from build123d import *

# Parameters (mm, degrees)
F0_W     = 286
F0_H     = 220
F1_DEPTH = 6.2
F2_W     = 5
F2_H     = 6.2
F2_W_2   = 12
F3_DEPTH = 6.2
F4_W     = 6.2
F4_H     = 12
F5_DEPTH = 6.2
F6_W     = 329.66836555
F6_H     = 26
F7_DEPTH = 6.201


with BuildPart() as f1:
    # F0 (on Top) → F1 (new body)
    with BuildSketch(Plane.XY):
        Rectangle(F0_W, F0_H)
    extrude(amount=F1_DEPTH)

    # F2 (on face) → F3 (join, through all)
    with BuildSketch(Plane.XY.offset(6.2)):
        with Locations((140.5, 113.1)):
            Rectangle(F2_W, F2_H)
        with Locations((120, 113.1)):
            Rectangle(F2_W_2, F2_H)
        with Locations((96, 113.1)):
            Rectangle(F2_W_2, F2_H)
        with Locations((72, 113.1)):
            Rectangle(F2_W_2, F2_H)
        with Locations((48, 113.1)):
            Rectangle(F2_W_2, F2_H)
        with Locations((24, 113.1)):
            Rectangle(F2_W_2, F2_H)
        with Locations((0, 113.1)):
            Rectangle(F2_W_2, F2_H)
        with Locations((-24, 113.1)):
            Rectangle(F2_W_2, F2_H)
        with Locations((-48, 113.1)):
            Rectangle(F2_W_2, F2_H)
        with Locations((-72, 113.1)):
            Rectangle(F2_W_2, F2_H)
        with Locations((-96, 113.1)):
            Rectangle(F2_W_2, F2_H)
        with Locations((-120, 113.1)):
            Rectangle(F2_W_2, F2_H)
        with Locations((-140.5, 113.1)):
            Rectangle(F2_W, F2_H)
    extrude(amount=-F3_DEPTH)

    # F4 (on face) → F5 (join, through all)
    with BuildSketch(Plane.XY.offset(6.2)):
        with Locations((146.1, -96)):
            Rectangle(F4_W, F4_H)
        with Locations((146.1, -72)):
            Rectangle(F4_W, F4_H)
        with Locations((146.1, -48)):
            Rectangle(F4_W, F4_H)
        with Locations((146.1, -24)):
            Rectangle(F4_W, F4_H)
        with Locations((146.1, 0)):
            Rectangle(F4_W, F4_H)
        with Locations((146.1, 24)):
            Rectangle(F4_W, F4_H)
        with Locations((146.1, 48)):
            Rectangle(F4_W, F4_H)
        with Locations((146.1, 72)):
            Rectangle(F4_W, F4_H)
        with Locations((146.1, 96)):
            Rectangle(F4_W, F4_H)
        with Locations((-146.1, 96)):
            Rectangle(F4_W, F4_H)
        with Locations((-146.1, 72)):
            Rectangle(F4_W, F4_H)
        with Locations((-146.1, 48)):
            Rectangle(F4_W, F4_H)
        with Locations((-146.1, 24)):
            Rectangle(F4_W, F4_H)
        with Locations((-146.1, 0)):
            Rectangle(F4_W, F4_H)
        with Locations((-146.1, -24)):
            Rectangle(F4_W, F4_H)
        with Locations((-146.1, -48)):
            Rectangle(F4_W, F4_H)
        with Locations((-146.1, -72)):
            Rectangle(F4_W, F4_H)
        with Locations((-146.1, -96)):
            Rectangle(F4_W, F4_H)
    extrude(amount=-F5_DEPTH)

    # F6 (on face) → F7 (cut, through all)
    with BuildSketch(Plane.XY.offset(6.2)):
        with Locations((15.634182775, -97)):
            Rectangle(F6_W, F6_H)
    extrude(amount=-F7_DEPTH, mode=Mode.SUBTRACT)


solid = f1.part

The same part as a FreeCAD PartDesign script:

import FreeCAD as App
import Part
import Sketcher

V = App.Vector
Q = App.Units.Quantity

doc = App.newDocument("Part")
params = doc.addObject("Spreadsheet::Sheet", "Params")
for row, (alias, value) in enumerate([
    ("sketch1_width", "286 mm"),
    ("sketch1_height", "220 mm"),
    ("pad1_length", "6.2 mm"),
    ("sketch2_width", "5 mm"),
    ("sketch2_width2", "12 mm"),
    ("sketch2_height", "6.2 mm"),
    ("pad2_length", "6.2 mm"),
    ("sketch3_height", "12 mm"),
    ("sketch3_width", "6.2 mm"),
    ("pad3_length", "6.2 mm"),
    ("sketch4_height", "26 mm"),
], start=1):
    params.set(f"A{row}", alias)
    params.set(f"B{row}", "=" + value)
    params.setAlias(f"B{row}", alias)

body = doc.addObject("PartDesign::Body", "Body")

# Sketch on XY plane
sketch1 = body.newObject("Sketcher::SketchObject", "Sketch")
sketch1.AttachmentSupport = (doc.getObject("XY_Plane"), [""])
sketch1.MapMode = "FlatFace"
sketch1.addGeometry(Part.LineSegment(V(-143, 110, 0), V(-143, -110, 0)), False)
sketch1.addGeometry(Part.LineSegment(V(-143, -110, 0), V(143, -110, 0)), False)
sketch1.addGeometry(Part.LineSegment(V(143, -110, 0), V(143, 110, 0)), False)
sketch1.addGeometry(Part.LineSegment(V(143, 110, 0), V(-143, 110, 0)), False)
sketch1.addConstraint(Sketcher.Constraint("Coincident", 0, 2, 1, 1))
sketch1.addConstraint(Sketcher.Constraint("Coincident", 1, 2, 2, 1))
sketch1.addConstraint(Sketcher.Constraint("Coincident", 2, 2, 3, 1))
sketch1.addConstraint(Sketcher.Constraint("Coincident", 3, 2, 0, 1))
sketch1.addConstraint(Sketcher.Constraint("Vertical", 0))
sketch1.addConstraint(Sketcher.Constraint("Horizontal", 1))
sketch1.addConstraint(Sketcher.Constraint("Vertical", 2))
sketch1.addConstraint(Sketcher.Constraint("Horizontal", 3))
sketch1.addConstraint(Sketcher.Constraint("Symmetric", 0, 2, 2, 2, -1, 1))
sketch1.addConstraint(Sketcher.Constraint("DistanceX", 1, 1, 1, 2, Q("286 mm")))
sketch1.addConstraint(Sketcher.Constraint("DistanceY", 0, 2, 0, 1, Q("220 mm")))
sketch1.setExpression("Constraints[9]", "Params.sketch1_width")
sketch1.setExpression("Constraints[10]", "Params.sketch1_height")
pad1 = body.newObject("PartDesign::Pad", "Pad")
pad1.Profile = sketch1
pad1.setExpression("Length", "Params.pad1_length")

# Sketch on XY plane
sketch2 = body.newObject("Sketcher::SketchObject", "Sketch001")
sketch2.AttachmentSupport = (doc.getObject("XY_Plane"), [""])
sketch2.MapMode = "FlatFace"
sketch2.AttachmentOffset = App.Placement(V(0, 0, 6.2), App.Rotation())
sketch2.addGeometry(Part.LineSegment(V(138, 116, 0), V(138, 110, 0)), False)
sketch2.addGeometry(Part.LineSegment(V(138, 110, 0), V(143, 110, 0)), False)
sketch2.addGeometry(Part.LineSegment(V(143, 110, 0), V(143, 116, 0)), False)
sketch2.addGeometry(Part.LineSegment(V(143, 116, 0), V(138, 116, 0)), False)
sketch2.addGeometry(Part.LineSegment(V(114, 116, 0), V(114, 110, 0)), False)
sketch2.addGeometry(Part.LineSegment(V(114, 110, 0), V(126, 110, 0)), False)
sketch2.addGeometry(Part.LineSegment(V(126, 110, 0), V(126, 116, 0)), False)
sketch2.addGeometry(Part.LineSegment(V(126, 116, 0), V(114, 116, 0)), False)
sketch2.addGeometry(Part.LineSegment(V(90, 116, 0), V(90, 110, 0)), False)
sketch2.addGeometry(Part.LineSegment(V(90, 110, 0), V(102, 110, 0)), False)
sketch2.addGeometry(Part.LineSegment(V(102, 110, 0), V(102, 116, 0)), False)
sketch2.addGeometry(Part.LineSegment(V(102, 116, 0), V(90, 116, 0)), False)
sketch2.addGeometry(Part.LineSegment(V(66, 116, 0), V(66, 110, 0)), False)
sketch2.addGeometry(Part.LineSegment(V(66, 110, 0), V(78, 110, 0)), False)
sketch2.addGeometry(Part.LineSegment(V(78, 110, 0), V(78, 116, 0)), False)
sketch2.addGeometry(Part.LineSegment(V(78, 116, 0), V(66, 116, 0)), False)
sketch2.addGeometry(Part.LineSegment(V(42, 116, 0), V(42, 110, 0)), False)
sketch2.addGeometry(Part.LineSegment(V(42, 110, 0), V(54, 110, 0)), False)
sketch2.addGeometry(Part.LineSegment(V(54, 110, 0), V(54, 116, 0)), False)
sketch2.addGeometry(Part.LineSegment(V(54, 116, 0), V(42, 116, 0)), False)
sketch2.addGeometry(Part.LineSegment(V(18, 116, 0), V(18, 110, 0)), False)
sketch2.addGeometry(Part.LineSegment(V(18, 110, 0), V(30, 110, 0)), False)
sketch2.addGeometry(Part.LineSegment(V(30, 110, 0), V(30, 116, 0)), False)
sketch2.addGeometry(Part.LineSegment(V(30, 116, 0), V(18, 116, 0)), False)
sketch2.addGeometry(Part.LineSegment(V(-6, 116, 0), V(-6, 110, 0)), False)
sketch2.addGeometry(Part.LineSegment(V(-6, 110, 0), V(6, 110, 0)), False)
sketch2.addGeometry(Part.LineSegment(V(6, 110, 0), V(6, 116, 0)), False)
sketch2.addGeometry(Part.LineSegment(V(6, 116, 0), V(-6, 116, 0)), False)
sketch2.addGeometry(Part.LineSegment(V(-30, 116, 0), V(-30, 110, 0)), False)
sketch2.addGeometry(Part.LineSegment(V(-30, 110, 0), V(-18, 110, 0)), False)
sketch2.addGeometry(Part.LineSegment(V(-18, 110, 0), V(-18, 116, 0)), False)
sketch2.addGeometry(Part.LineSegment(V(-18, 116, 0), V(-30, 116, 0)), False)
sketch2.addGeometry(Part.LineSegment(V(-54, 116, 0), V(-54, 110, 0)), False)
sketch2.addGeometry(Part.LineSegment(V(-54, 110, 0), V(-42, 110, 0)), False)
sketch2.addGeometry(Part.LineSegment(V(-42, 110, 0), V(-42, 116, 0)), False)
sketch2.addGeometry(Part.LineSegment(V(-42, 116, 0), V(-54, 116, 0)), False)
sketch2.addGeometry(Part.LineSegment(V(-78, 116, 0), V(-78, 110, 0)), False)
sketch2.addGeometry(Part.LineSegment(V(-78, 110, 0), V(-66, 110, 0)), False)
sketch2.addGeometry(Part.LineSegment(V(-66, 110, 0), V(-66, 116, 0)), False)
sketch2.addGeometry(Part.LineSegment(V(-66, 116, 0), V(-78, 116, 0)), False)
sketch2.addGeometry(Part.LineSegment(V(-102, 116, 0), V(-102, 110, 0)), False)
sketch2.addGeometry(Part.LineSegment(V(-102, 110, 0), V(-90, 110, 0)), False)
sketch2.addGeometry(Part.LineSegment(V(-90, 110, 0), V(-90, 116, 0)), False)
sketch2.addGeometry(Part.LineSegment(V(-90, 116, 0), V(-102, 116, 0)), False)
sketch2.addGeometry(Part.LineSegment(V(-126, 116, 0), V(-126, 110, 0)), False)
sketch2.addGeometry(Part.LineSegment(V(-126, 110, 0), V(-114, 110, 0)), False)
sketch2.addGeometry(Part.LineSegment(V(-114, 110, 0), V(-114, 116, 0)), False)
sketch2.addGeometry(Part.LineSegment(V(-114, 116, 0), V(-126, 116, 0)), False)
sketch2.addGeometry(Part.LineSegment(V(-143, 116, 0), V(-143, 110, 0)), False)
sketch2.addGeometry(Part.LineSegment(V(-143, 110, 0), V(-138, 110, 0)), False)
sketch2.addGeometry(Part.LineSegment(V(-138, 110, 0), V(-138, 116, 0)), False)
sketch2.addGeometry(Part.LineSegment(V(-138, 116, 0), V(-143, 116, 0)), False)
sketch2.addConstraint(Sketcher.Constraint("Coincident", 0, 2, 1, 1))
sketch2.addConstraint(Sketcher.Constraint("Coincident", 1, 2, 2, 1))
sketch2.addConstraint(Sketcher.Constraint("Coincident", 2, 2, 3, 1))
sketch2.addConstraint(Sketcher.Constraint("Coincident", 3, 2, 0, 1))
sketch2.addConstraint(Sketcher.Constraint("Coincident", 4, 2, 5, 1))
sketch2.addConstraint(Sketcher.Constraint("Coincident", 5, 2, 6, 1))
sketch2.addConstraint(Sketcher.Constraint("Coincident", 6, 2, 7, 1))
sketch2.addConstraint(Sketcher.Constraint("Coincident", 7, 2, 4, 1))
sketch2.addConstraint(Sketcher.Constraint("Coincident", 8, 2, 9, 1))
sketch2.addConstraint(Sketcher.Constraint("Coincident", 9, 2, 10, 1))
sketch2.addConstraint(Sketcher.Constraint("Coincident", 10, 2, 11, 1))
sketch2.addConstraint(Sketcher.Constraint("Coincident", 11, 2, 8, 1))
sketch2.addConstraint(Sketcher.Constraint("Coincident", 12, 2, 13, 1))
sketch2.addConstraint(Sketcher.Constraint("Coincident", 13, 2, 14, 1))
sketch2.addConstraint(Sketcher.Constraint("Coincident", 14, 2, 15, 1))
sketch2.addConstraint(Sketcher.Constraint("Coincident", 15, 2, 12, 1))
sketch2.addConstraint(Sketcher.Constraint("Coincident", 16, 2, 17, 1))
sketch2.addConstraint(Sketcher.Constraint("Coincident", 17, 2, 18, 1))
sketch2.addConstraint(Sketcher.Constraint("Coincident", 18, 2, 19, 1))
sketch2.addConstraint(Sketcher.Constraint("Coincident", 19, 2, 16, 1))
sketch2.addConstraint(Sketcher.Constraint("Coincident", 20, 2, 21, 1))
sketch2.addConstraint(Sketcher.Constraint("Coincident", 21, 2, 22, 1))
sketch2.addConstraint(Sketcher.Constraint("Coincident", 22, 2, 23, 1))
sketch2.addConstraint(Sketcher.Constraint("Coincident", 23, 2, 20, 1))
sketch2.addConstraint(Sketcher.Constraint("Coincident", 24, 2, 25, 1))
sketch2.addConstraint(Sketcher.Constraint("Coincident", 25, 2, 26, 1))
sketch2.addConstraint(Sketcher.Constraint("Coincident", 26, 2, 27, 1))
sketch2.addConstraint(Sketcher.Constraint("Coincident", 27, 2, 24, 1))
sketch2.addConstraint(Sketcher.Constraint("Coincident", 28, 2, 29, 1))
sketch2.addConstraint(Sketcher.Constraint("Coincident", 29, 2, 30, 1))
sketch2.addConstraint(Sketcher.Constraint("Coincident", 30, 2, 31, 1))
sketch2.addConstraint(Sketcher.Constraint("Coincident", 31, 2, 28, 1))
sketch2.addConstraint(Sketcher.Constraint("Coincident", 32, 2, 33, 1))
sketch2.addConstraint(Sketcher.Constraint("Coincident", 33, 2, 34, 1))
sketch2.addConstraint(Sketcher.Constraint("Coincident", 34, 2, 35, 1))
sketch2.addConstraint(Sketcher.Constraint("Coincident", 35, 2, 32, 1))
sketch2.addConstraint(Sketcher.Constraint("Coincident", 36, 2, 37, 1))
sketch2.addConstraint(Sketcher.Constraint("Coincident", 37, 2, 38, 1))
sketch2.addConstraint(Sketcher.Constraint("Coincident", 38, 2, 39, 1))
sketch2.addConstraint(Sketcher.Constraint("Coincident", 39, 2, 36, 1))
sketch2.addConstraint(Sketcher.Constraint("Coincident", 40, 2, 41, 1))
sketch2.addConstraint(Sketcher.Constraint("Coincident", 41, 2, 42, 1))
sketch2.addConstraint(Sketcher.Constraint("Coincident", 42, 2, 43, 1))
sketch2.addConstraint(Sketcher.Constraint("Coincident", 43, 2, 40, 1))
sketch2.addConstraint(Sketcher.Constraint("Coincident", 44, 2, 45, 1))
sketch2.addConstraint(Sketcher.Constraint("Coincident", 45, 2, 46, 1))
sketch2.addConstraint(Sketcher.Constraint("Coincident", 46, 2, 47, 1))
sketch2.addConstraint(Sketcher.Constraint("Coincident", 47, 2, 44, 1))
sketch2.addConstraint(Sketcher.Constraint("Coincident", 48, 2, 49, 1))
sketch2.addConstraint(Sketcher.Constraint("Coincident", 49, 2, 50, 1))
sketch2.addConstraint(Sketcher.Constraint("Coincident", 50, 2, 51, 1))
sketch2.addConstraint(Sketcher.Constraint("Coincident", 51, 2, 48, 1))
sketch2.addConstraint(Sketcher.Constraint("Vertical", 0))
sketch2.addConstraint(Sketcher.Constraint("Horizontal", 1))
sketch2.addConstraint(Sketcher.Constraint("Vertical", 2))
sketch2.addConstraint(Sketcher.Constraint("Horizontal", 3))
sketch2.addConstraint(Sketcher.Constraint("Vertical", 4))
sketch2.addConstraint(Sketcher.Constraint("Horizontal", 5))
sketch2.addConstraint(Sketcher.Constraint("Vertical", 6))
sketch2.addConstraint(Sketcher.Constraint("Horizontal", 7))
sketch2.addConstraint(Sketcher.Constraint("Vertical", 8))
sketch2.addConstraint(Sketcher.Constraint("Horizontal", 9))
sketch2.addConstraint(Sketcher.Constraint("Vertical", 10))
sketch2.addConstraint(Sketcher.Constraint("Horizontal", 11))
sketch2.addConstraint(Sketcher.Constraint("Vertical", 12))
sketch2.addConstraint(Sketcher.Constraint("Horizontal", 13))
sketch2.addConstraint(Sketcher.Constraint("Vertical", 14))
sketch2.addConstraint(Sketcher.Constraint("Horizontal", 15))
sketch2.addConstraint(Sketcher.Constraint("Vertical", 16))
sketch2.addConstraint(Sketcher.Constraint("Horizontal", 17))
sketch2.addConstraint(Sketcher.Constraint("Vertical", 18))
sketch2.addConstraint(Sketcher.Constraint("Horizontal", 19))
sketch2.addConstraint(Sketcher.Constraint("Vertical", 20))
sketch2.addConstraint(Sketcher.Constraint("Horizontal", 21))
sketch2.addConstraint(Sketcher.Constraint("Vertical", 22))
sketch2.addConstraint(Sketcher.Constraint("Horizontal", 23))
sketch2.addConstraint(Sketcher.Constraint("Vertical", 24))
sketch2.addConstraint(Sketcher.Constraint("Horizontal", 25))
sketch2.addConstraint(Sketcher.Constraint("Vertical", 26))
sketch2.addConstraint(Sketcher.Constraint("Horizontal", 27))
sketch2.addConstraint(Sketcher.Constraint("Vertical", 28))
sketch2.addConstraint(Sketcher.Constraint("Horizontal", 29))
sketch2.addConstraint(Sketcher.Constraint("Vertical", 30))
sketch2.addConstraint(Sketcher.Constraint("Horizontal", 31))
sketch2.addConstraint(Sketcher.Constraint("Vertical", 32))
sketch2.addConstraint(Sketcher.Constraint("Horizontal", 33))
sketch2.addConstraint(Sketcher.Constraint("Vertical", 34))
sketch2.addConstraint(Sketcher.Constraint("Horizontal", 35))
sketch2.addConstraint(Sketcher.Constraint("Vertical", 36))
sketch2.addConstraint(Sketcher.Constraint("Horizontal", 37))
sketch2.addConstraint(Sketcher.Constraint("Vertical", 38))
sketch2.addConstraint(Sketcher.Constraint("Horizontal", 39))
sketch2.addConstraint(Sketcher.Constraint("Vertical", 40))
sketch2.addConstraint(Sketcher.Constraint("Horizontal", 41))
sketch2.addConstraint(Sketcher.Constraint("Vertical", 42))
sketch2.addConstraint(Sketcher.Constraint("Horizontal", 43))
sketch2.addConstraint(Sketcher.Constraint("Vertical", 44))
sketch2.addConstraint(Sketcher.Constraint("Horizontal", 45))
sketch2.addConstraint(Sketcher.Constraint("Vertical", 46))
sketch2.addConstraint(Sketcher.Constraint("Horizontal", 47))
sketch2.addConstraint(Sketcher.Constraint("Vertical", 48))
sketch2.addConstraint(Sketcher.Constraint("Horizontal", 49))
sketch2.addConstraint(Sketcher.Constraint("Vertical", 50))
sketch2.addConstraint(Sketcher.Constraint("Horizontal", 51))
sketch2.addConstraint(Sketcher.Constraint("Symmetric", 21, 2, 28, 2, -2))
sketch2.addConstraint(Sketcher.Constraint("Symmetric", 23, 2, 30, 2, -2))
sketch2.addConstraint(Sketcher.Constraint("Symmetric", 17, 2, 32, 2, -2))
sketch2.addConstraint(Sketcher.Constraint("Symmetric", 19, 2, 34, 2, -2))
sketch2.addConstraint(Sketcher.Constraint("Symmetric", 13, 2, 36, 2, -2))
sketch2.addConstraint(Sketcher.Constraint("Symmetric", 15, 2, 38, 2, -2))
sketch2.addConstraint(Sketcher.Constraint("Symmetric", 9, 2, 40, 2, -2))
sketch2.addConstraint(Sketcher.Constraint("Symmetric", 11, 2, 42, 2, -2))
sketch2.addConstraint(Sketcher.Constraint("Symmetric", 5, 2, 44, 2, -2))
sketch2.addConstraint(Sketcher.Constraint("Symmetric", 7, 2, 46, 2, -2))
sketch2.addConstraint(Sketcher.Constraint("Symmetric", 1, 2, 48, 2, -2))
sketch2.addConstraint(Sketcher.Constraint("Symmetric", 3, 2, 50, 2, -2))
sketch2.addConstraint(Sketcher.Constraint("Horizontal", 1, 2, 4, 2))
sketch2.addConstraint(Sketcher.Constraint("Horizontal", 3, 2, 6, 2))
sketch2.addConstraint(Sketcher.Constraint("Horizontal", 5, 2, 8, 2))
sketch2.addConstraint(Sketcher.Constraint("Horizontal", 7, 2, 10, 2))
sketch2.addConstraint(Sketcher.Constraint("Horizontal", 9, 2, 12, 2))
sketch2.addConstraint(Sketcher.Constraint("Horizontal", 11, 2, 14, 2))
sketch2.addConstraint(Sketcher.Constraint("Horizontal", 13, 2, 16, 2))
sketch2.addConstraint(Sketcher.Constraint("Horizontal", 15, 2, 18, 2))
sketch2.addConstraint(Sketcher.Constraint("Horizontal", 17, 2, 20, 2))
sketch2.addConstraint(Sketcher.Constraint("Horizontal", 19, 2, 22, 2))
sketch2.addConstraint(Sketcher.Constraint("Horizontal", 21, 2, 24, 2))
sketch2.addConstraint(Sketcher.Constraint("Horizontal", 23, 2, 26, 2))
sketch2.addConstraint(Sketcher.Constraint("Equal", 7, 9))
sketch2.addConstraint(Sketcher.Constraint("Equal", 11, 13))
sketch2.addConstraint(Sketcher.Constraint("Equal", 15, 17))
sketch2.addConstraint(Sketcher.Constraint("Equal", 19, 21))
sketch2.addConstraint(Sketcher.Constraint("Equal", 23, 25))
sketch2.addConstraint(Sketcher.Constraint("DistanceX", 1, 1, 1, 2, Q("5 mm")))
sketch2.addConstraint(Sketcher.Constraint("DistanceX", 5, 1, 5, 2, Q("12 mm")))
sketch2.addConstraint(Sketcher.Constraint("DistanceY", 0, 2, 0, 1, Q("6.2 mm")))
sketch2.addConstraint(Sketcher.Constraint("DistanceX", -1, 1, 0, 2, Q("138 mm")))
sketch2.addConstraint(Sketcher.Constraint("DistanceY", -1, 1, 0, 2, Q("110 mm")))
sketch2.addConstraint(Sketcher.Constraint("DistanceX", -1, 1, 4, 2, Q("114 mm")))
sketch2.addConstraint(Sketcher.Constraint("DistanceX", -1, 1, 8, 2, Q("90 mm")))
sketch2.addConstraint(Sketcher.Constraint("DistanceX", -1, 1, 12, 2, Q("66 mm")))
sketch2.addConstraint(Sketcher.Constraint("DistanceX", -1, 1, 16, 2, Q("42 mm")))
sketch2.addConstraint(Sketcher.Constraint("DistanceX", -1, 1, 20, 2, Q("18 mm")))
sketch2.addConstraint(Sketcher.Constraint("DistanceX", 24, 2, -1, 1, Q("6 mm")))
sketch2.setExpression("Constraints[133]", "Params.sketch2_width")
sketch2.setExpression("Constraints[134]", "Params.sketch2_width2")
sketch2.setExpression("Constraints[135]", "Params.sketch2_height")
pad2 = body.newObject("PartDesign::Pad", "Pad001")
pad2.Profile = sketch2
pad2.setExpression("Length", "Params.pad2_length")
pad2.Reversed = True

# Sketch on XY plane
sketch3 = body.newObject("Sketcher::SketchObject", "Sketch002")
sketch3.AttachmentSupport = (doc.getObject("XY_Plane"), [""])
sketch3.MapMode = "FlatFace"
sketch3.AttachmentOffset = App.Placement(V(0, 0, 6.2), App.Rotation())
sketch3.addGeometry(Part.LineSegment(V(143, -90, 0), V(143, -102, 0)), False)
sketch3.addGeometry(Part.LineSegment(V(143, -102, 0), V(149, -102, 0)), False)
sketch3.addGeometry(Part.LineSegment(V(149, -102, 0), V(149, -90, 0)), False)
sketch3.addGeometry(Part.LineSegment(V(149, -90, 0), V(143, -90, 0)), False)
sketch3.addGeometry(Part.LineSegment(V(143, -66, 0), V(143, -78, 0)), False)
sketch3.addGeometry(Part.LineSegment(V(143, -78, 0), V(149, -78, 0)), False)
sketch3.addGeometry(Part.LineSegment(V(149, -78, 0), V(149, -66, 0)), False)
sketch3.addGeometry(Part.LineSegment(V(149, -66, 0), V(143, -66, 0)), False)
sketch3.addGeometry(Part.LineSegment(V(143, -42, 0), V(143, -54, 0)), False)
sketch3.addGeometry(Part.LineSegment(V(143, -54, 0), V(149, -54, 0)), False)
sketch3.addGeometry(Part.LineSegment(V(149, -54, 0), V(149, -42, 0)), False)
sketch3.addGeometry(Part.LineSegment(V(149, -42, 0), V(143, -42, 0)), False)
sketch3.addGeometry(Part.LineSegment(V(143, -18, 0), V(143, -30, 0)), False)
sketch3.addGeometry(Part.LineSegment(V(143, -30, 0), V(149, -30, 0)), False)
sketch3.addGeometry(Part.LineSegment(V(149, -30, 0), V(149, -18, 0)), False)
sketch3.addGeometry(Part.LineSegment(V(149, -18, 0), V(143, -18, 0)), False)
sketch3.addGeometry(Part.LineSegment(V(143, 6, 0), V(143, -6, 0)), False)
sketch3.addGeometry(Part.LineSegment(V(143, -6, 0), V(149, -6, 0)), False)
sketch3.addGeometry(Part.LineSegment(V(149, -6, 0), V(149, 6, 0)), False)
sketch3.addGeometry(Part.LineSegment(V(149, 6, 0), V(143, 6, 0)), False)
sketch3.addGeometry(Part.LineSegment(V(143, 30, 0), V(143, 18, 0)), False)
sketch3.addGeometry(Part.LineSegment(V(143, 18, 0), V(149, 18, 0)), False)
sketch3.addGeometry(Part.LineSegment(V(149, 18, 0), V(149, 30, 0)), False)
sketch3.addGeometry(Part.LineSegment(V(149, 30, 0), V(143, 30, 0)), False)
sketch3.addGeometry(Part.LineSegment(V(143, 54, 0), V(143, 42, 0)), False)
sketch3.addGeometry(Part.LineSegment(V(143, 42, 0), V(149, 42, 0)), False)
sketch3.addGeometry(Part.LineSegment(V(149, 42, 0), V(149, 54, 0)), False)
sketch3.addGeometry(Part.LineSegment(V(149, 54, 0), V(143, 54, 0)), False)
sketch3.addGeometry(Part.LineSegment(V(143, 78, 0), V(143, 66, 0)), False)
sketch3.addGeometry(Part.LineSegment(V(143, 66, 0), V(149, 66, 0)), False)
sketch3.addGeometry(Part.LineSegment(V(149, 66, 0), V(149, 78, 0)), False)
sketch3.addGeometry(Part.LineSegment(V(149, 78, 0), V(143, 78, 0)), False)
sketch3.addGeometry(Part.LineSegment(V(143, 102, 0), V(143, 90, 0)), False)
sketch3.addGeometry(Part.LineSegment(V(143, 90, 0), V(149, 90, 0)), False)
sketch3.addGeometry(Part.LineSegment(V(149, 90, 0), V(149, 102, 0)), False)
sketch3.addGeometry(Part.LineSegment(V(149, 102, 0), V(143, 102, 0)), False)
sketch3.addGeometry(Part.LineSegment(V(-149, 102, 0), V(-149, 90, 0)), False)
sketch3.addGeometry(Part.LineSegment(V(-149, 90, 0), V(-143, 90, 0)), False)
sketch3.addGeometry(Part.LineSegment(V(-143, 90, 0), V(-143, 102, 0)), False)
sketch3.addGeometry(Part.LineSegment(V(-143, 102, 0), V(-149, 102, 0)), False)
sketch3.addGeometry(Part.LineSegment(V(-149, 78, 0), V(-149, 66, 0)), False)
sketch3.addGeometry(Part.LineSegment(V(-149, 66, 0), V(-143, 66, 0)), False)
sketch3.addGeometry(Part.LineSegment(V(-143, 66, 0), V(-143, 78, 0)), False)
sketch3.addGeometry(Part.LineSegment(V(-143, 78, 0), V(-149, 78, 0)), False)
sketch3.addGeometry(Part.LineSegment(V(-149, 54, 0), V(-149, 42, 0)), False)
sketch3.addGeometry(Part.LineSegment(V(-149, 42, 0), V(-143, 42, 0)), False)
sketch3.addGeometry(Part.LineSegment(V(-143, 42, 0), V(-143, 54, 0)), False)
sketch3.addGeometry(Part.LineSegment(V(-143, 54, 0), V(-149, 54, 0)), False)
sketch3.addGeometry(Part.LineSegment(V(-149, 30, 0), V(-149, 18, 0)), False)
sketch3.addGeometry(Part.LineSegment(V(-149, 18, 0), V(-143, 18, 0)), False)
sketch3.addGeometry(Part.LineSegment(V(-143, 18, 0), V(-143, 30, 0)), False)
sketch3.addGeometry(Part.LineSegment(V(-143, 30, 0), V(-149, 30, 0)), False)
sketch3.addGeometry(Part.LineSegment(V(-149, 6, 0), V(-149, -6, 0)), False)
sketch3.addGeometry(Part.LineSegment(V(-149, -6, 0), V(-143, -6, 0)), False)
sketch3.addGeometry(Part.LineSegment(V(-143, -6, 0), V(-143, 6, 0)), False)
sketch3.addGeometry(Part.LineSegment(V(-143, 6, 0), V(-149, 6, 0)), False)
sketch3.addGeometry(Part.LineSegment(V(-149, -18, 0), V(-149, -30, 0)), False)
sketch3.addGeometry(Part.LineSegment(V(-149, -30, 0), V(-143, -30, 0)), False)
sketch3.addGeometry(Part.LineSegment(V(-143, -30, 0), V(-143, -18, 0)), False)
sketch3.addGeometry(Part.LineSegment(V(-143, -18, 0), V(-149, -18, 0)), False)
sketch3.addGeometry(Part.LineSegment(V(-149, -42, 0), V(-149, -54, 0)), False)
sketch3.addGeometry(Part.LineSegment(V(-149, -54, 0), V(-143, -54, 0)), False)
sketch3.addGeometry(Part.LineSegment(V(-143, -54, 0), V(-143, -42, 0)), False)
sketch3.addGeometry(Part.LineSegment(V(-143, -42, 0), V(-149, -42, 0)), False)
sketch3.addGeometry(Part.LineSegment(V(-149, -66, 0), V(-149, -78, 0)), False)
sketch3.addGeometry(Part.LineSegment(V(-149, -78, 0), V(-143, -78, 0)), False)
sketch3.addGeometry(Part.LineSegment(V(-143, -78, 0), V(-143, -66, 0)), False)
sketch3.addGeometry(Part.LineSegment(V(-143, -66, 0), V(-149, -66, 0)), False)
sketch3.addGeometry(Part.LineSegment(V(-149, -90, 0), V(-149, -102, 0)), False)
sketch3.addGeometry(Part.LineSegment(V(-149, -102, 0), V(-143, -102, 0)), False)
sketch3.addGeometry(Part.LineSegment(V(-143, -102, 0), V(-143, -90, 0)), False)
sketch3.addGeometry(Part.LineSegment(V(-143, -90, 0), V(-149, -90, 0)), False)
sketch3.addConstraint(Sketcher.Constraint("Coincident", 0, 2, 1, 1))
sketch3.addConstraint(Sketcher.Constraint("Coincident", 1, 2, 2, 1))
sketch3.addConstraint(Sketcher.Constraint("Coincident", 2, 2, 3, 1))
sketch3.addConstraint(Sketcher.Constraint("Coincident", 3, 2, 0, 1))
sketch3.addConstraint(Sketcher.Constraint("Coincident", 4, 2, 5, 1))
sketch3.addConstraint(Sketcher.Constraint("Coincident", 5, 2, 6, 1))
sketch3.addConstraint(Sketcher.Constraint("Coincident", 6, 2, 7, 1))
sketch3.addConstraint(Sketcher.Constraint("Coincident", 7, 2, 4, 1))
sketch3.addConstraint(Sketcher.Constraint("Coincident", 8, 2, 9, 1))
sketch3.addConstraint(Sketcher.Constraint("Coincident", 9, 2, 10, 1))
sketch3.addConstraint(Sketcher.Constraint("Coincident", 10, 2, 11, 1))
sketch3.addConstraint(Sketcher.Constraint("Coincident", 11, 2, 8, 1))
sketch3.addConstraint(Sketcher.Constraint("Coincident", 12, 2, 13, 1))
sketch3.addConstraint(Sketcher.Constraint("Coincident", 13, 2, 14, 1))
sketch3.addConstraint(Sketcher.Constraint("Coincident", 14, 2, 15, 1))
sketch3.addConstraint(Sketcher.Constraint("Coincident", 15, 2, 12, 1))
sketch3.addConstraint(Sketcher.Constraint("Coincident", 16, 2, 17, 1))
sketch3.addConstraint(Sketcher.Constraint("Coincident", 17, 2, 18, 1))
sketch3.addConstraint(Sketcher.Constraint("Coincident", 18, 2, 19, 1))
sketch3.addConstraint(Sketcher.Constraint("Coincident", 19, 2, 16, 1))
sketch3.addConstraint(Sketcher.Constraint("Coincident", 20, 2, 21, 1))
sketch3.addConstraint(Sketcher.Constraint("Coincident", 21, 2, 22, 1))
sketch3.addConstraint(Sketcher.Constraint("Coincident", 22, 2, 23, 1))
sketch3.addConstraint(Sketcher.Constraint("Coincident", 23, 2, 20, 1))
sketch3.addConstraint(Sketcher.Constraint("Coincident", 24, 2, 25, 1))
sketch3.addConstraint(Sketcher.Constraint("Coincident", 25, 2, 26, 1))
sketch3.addConstraint(Sketcher.Constraint("Coincident", 26, 2, 27, 1))
sketch3.addConstraint(Sketcher.Constraint("Coincident", 27, 2, 24, 1))
sketch3.addConstraint(Sketcher.Constraint("Coincident", 28, 2, 29, 1))
sketch3.addConstraint(Sketcher.Constraint("Coincident", 29, 2, 30, 1))
sketch3.addConstraint(Sketcher.Constraint("Coincident", 30, 2, 31, 1))
sketch3.addConstraint(Sketcher.Constraint("Coincident", 31, 2, 28, 1))
sketch3.addConstraint(Sketcher.Constraint("Coincident", 32, 2, 33, 1))
sketch3.addConstraint(Sketcher.Constraint("Coincident", 33, 2, 34, 1))
sketch3.addConstraint(Sketcher.Constraint("Coincident", 34, 2, 35, 1))
sketch3.addConstraint(Sketcher.Constraint("Coincident", 35, 2, 32, 1))
sketch3.addConstraint(Sketcher.Constraint("Coincident", 36, 2, 37, 1))
sketch3.addConstraint(Sketcher.Constraint("Coincident", 37, 2, 38, 1))
sketch3.addConstraint(Sketcher.Constraint("Coincident", 38, 2, 39, 1))
sketch3.addConstraint(Sketcher.Constraint("Coincident", 39, 2, 36, 1))
sketch3.addConstraint(Sketcher.Constraint("Coincident", 40, 2, 41, 1))
sketch3.addConstraint(Sketcher.Constraint("Coincident", 41, 2, 42, 1))
sketch3.addConstraint(Sketcher.Constraint("Coincident", 42, 2, 43, 1))
sketch3.addConstraint(Sketcher.Constraint("Coincident", 43, 2, 40, 1))
sketch3.addConstraint(Sketcher.Constraint("Coincident", 44, 2, 45, 1))
sketch3.addConstraint(Sketcher.Constraint("Coincident", 45, 2, 46, 1))
sketch3.addConstraint(Sketcher.Constraint("Coincident", 46, 2, 47, 1))
sketch3.addConstraint(Sketcher.Constraint("Coincident", 47, 2, 44, 1))
sketch3.addConstraint(Sketcher.Constraint("Coincident", 48, 2, 49, 1))
sketch3.addConstraint(Sketcher.Constraint("Coincident", 49, 2, 50, 1))
sketch3.addConstraint(Sketcher.Constraint("Coincident", 50, 2, 51, 1))
sketch3.addConstraint(Sketcher.Constraint("Coincident", 51, 2, 48, 1))
sketch3.addConstraint(Sketcher.Constraint("Coincident", 52, 2, 53, 1))
sketch3.addConstraint(Sketcher.Constraint("Coincident", 53, 2, 54, 1))
sketch3.addConstraint(Sketcher.Constraint("Coincident", 54, 2, 55, 1))
sketch3.addConstraint(Sketcher.Constraint("Coincident", 55, 2, 52, 1))
sketch3.addConstraint(Sketcher.Constraint("Coincident", 56, 2, 57, 1))
sketch3.addConstraint(Sketcher.Constraint("Coincident", 57, 2, 58, 1))
sketch3.addConstraint(Sketcher.Constraint("Coincident", 58, 2, 59, 1))
sketch3.addConstraint(Sketcher.Constraint("Coincident", 59, 2, 56, 1))
sketch3.addConstraint(Sketcher.Constraint("Coincident", 60, 2, 61, 1))
sketch3.addConstraint(Sketcher.Constraint("Coincident", 61, 2, 62, 1))
sketch3.addConstraint(Sketcher.Constraint("Coincident", 62, 2, 63, 1))
sketch3.addConstraint(Sketcher.Constraint("Coincident", 63, 2, 60, 1))
sketch3.addConstraint(Sketcher.Constraint("Coincident", 64, 2, 65, 1))
sketch3.addConstraint(Sketcher.Constraint("Coincident", 65, 2, 66, 1))
sketch3.addConstraint(Sketcher.Constraint("Coincident", 66, 2, 67, 1))
sketch3.addConstraint(Sketcher.Constraint("Coincident", 67, 2, 64, 1))
sketch3.addConstraint(Sketcher.Constraint("Coincident", 68, 2, 69, 1))
sketch3.addConstraint(Sketcher.Constraint("Coincident", 69, 2, 70, 1))
sketch3.addConstraint(Sketcher.Constraint("Coincident", 70, 2, 71, 1))
sketch3.addConstraint(Sketcher.Constraint("Coincident", 71, 2, 68, 1))
sketch3.addConstraint(Sketcher.Constraint("Vertical", 0))
sketch3.addConstraint(Sketcher.Constraint("Horizontal", 1))
sketch3.addConstraint(Sketcher.Constraint("Vertical", 2))
sketch3.addConstraint(Sketcher.Constraint("Horizontal", 3))
sketch3.addConstraint(Sketcher.Constraint("Vertical", 4))
sketch3.addConstraint(Sketcher.Constraint("Horizontal", 5))
sketch3.addConstraint(Sketcher.Constraint("Vertical", 6))
sketch3.addConstraint(Sketcher.Constraint("Horizontal", 7))
sketch3.addConstraint(Sketcher.Constraint("Vertical", 8))
sketch3.addConstraint(Sketcher.Constraint("Horizontal", 9))
sketch3.addConstraint(Sketcher.Constraint("Vertical", 10))
sketch3.addConstraint(Sketcher.Constraint("Horizontal", 11))
sketch3.addConstraint(Sketcher.Constraint("Vertical", 12))
sketch3.addConstraint(Sketcher.Constraint("Horizontal", 13))
sketch3.addConstraint(Sketcher.Constraint("Vertical", 14))
sketch3.addConstraint(Sketcher.Constraint("Horizontal", 15))
sketch3.addConstraint(Sketcher.Constraint("Vertical", 16))
sketch3.addConstraint(Sketcher.Constraint("Horizontal", 17))
sketch3.addConstraint(Sketcher.Constraint("Vertical", 18))
sketch3.addConstraint(Sketcher.Constraint("Horizontal", 19))
sketch3.addConstraint(Sketcher.Constraint("Vertical", 20))
sketch3.addConstraint(Sketcher.Constraint("Horizontal", 21))
sketch3.addConstraint(Sketcher.Constraint("Vertical", 22))
sketch3.addConstraint(Sketcher.Constraint("Horizontal", 23))
sketch3.addConstraint(Sketcher.Constraint("Vertical", 24))
sketch3.addConstraint(Sketcher.Constraint("Horizontal", 25))
sketch3.addConstraint(Sketcher.Constraint("Vertical", 26))
sketch3.addConstraint(Sketcher.Constraint("Horizontal", 27))
sketch3.addConstraint(Sketcher.Constraint("Vertical", 28))
sketch3.addConstraint(Sketcher.Constraint("Horizontal", 29))
sketch3.addConstraint(Sketcher.Constraint("Vertical", 30))
sketch3.addConstraint(Sketcher.Constraint("Horizontal", 31))
sketch3.addConstraint(Sketcher.Constraint("Vertical", 32))
sketch3.addConstraint(Sketcher.Constraint("Horizontal", 33))
sketch3.addConstraint(Sketcher.Constraint("Vertical", 34))
sketch3.addConstraint(Sketcher.Constraint("Horizontal", 35))
sketch3.addConstraint(Sketcher.Constraint("Vertical", 36))
sketch3.addConstraint(Sketcher.Constraint("Horizontal", 37))
sketch3.addConstraint(Sketcher.Constraint("Vertical", 38))
sketch3.addConstraint(Sketcher.Constraint("Horizontal", 39))
sketch3.addConstraint(Sketcher.Constraint("Vertical", 40))
sketch3.addConstraint(Sketcher.Constraint("Horizontal", 41))
sketch3.addConstraint(Sketcher.Constraint("Vertical", 42))
sketch3.addConstraint(Sketcher.Constraint("Horizontal", 43))
sketch3.addConstraint(Sketcher.Constraint("Vertical", 44))
sketch3.addConstraint(Sketcher.Constraint("Horizontal", 45))
sketch3.addConstraint(Sketcher.Constraint("Vertical", 46))
sketch3.addConstraint(Sketcher.Constraint("Horizontal", 47))
sketch3.addConstraint(Sketcher.Constraint("Vertical", 48))
sketch3.addConstraint(Sketcher.Constraint("Horizontal", 49))
sketch3.addConstraint(Sketcher.Constraint("Vertical", 50))
sketch3.addConstraint(Sketcher.Constraint("Horizontal", 51))
sketch3.addConstraint(Sketcher.Constraint("Vertical", 52))
sketch3.addConstraint(Sketcher.Constraint("Horizontal", 53))
sketch3.addConstraint(Sketcher.Constraint("Vertical", 54))
sketch3.addConstraint(Sketcher.Constraint("Horizontal", 55))
sketch3.addConstraint(Sketcher.Constraint("Vertical", 56))
sketch3.addConstraint(Sketcher.Constraint("Horizontal", 57))
sketch3.addConstraint(Sketcher.Constraint("Vertical", 58))
sketch3.addConstraint(Sketcher.Constraint("Horizontal", 59))
sketch3.addConstraint(Sketcher.Constraint("Vertical", 60))
sketch3.addConstraint(Sketcher.Constraint("Horizontal", 61))
sketch3.addConstraint(Sketcher.Constraint("Vertical", 62))
sketch3.addConstraint(Sketcher.Constraint("Horizontal", 63))
sketch3.addConstraint(Sketcher.Constraint("Vertical", 64))
sketch3.addConstraint(Sketcher.Constraint("Horizontal", 65))
sketch3.addConstraint(Sketcher.Constraint("Vertical", 66))
sketch3.addConstraint(Sketcher.Constraint("Horizontal", 67))
sketch3.addConstraint(Sketcher.Constraint("Vertical", 68))
sketch3.addConstraint(Sketcher.Constraint("Horizontal", 69))
sketch3.addConstraint(Sketcher.Constraint("Vertical", 70))
sketch3.addConstraint(Sketcher.Constraint("Horizontal", 71))
sketch3.addConstraint(Sketcher.Constraint("Symmetric", 2, 2, 36, 2, -1, 1))
sketch3.addConstraint(Sketcher.Constraint("Symmetric", 0, 2, 38, 2, -1, 1))
sketch3.addConstraint(Sketcher.Constraint("Symmetric", 6, 2, 40, 2, -1, 1))
sketch3.addConstraint(Sketcher.Constraint("Symmetric", 4, 2, 42, 2, -1, 1))
sketch3.addConstraint(Sketcher.Constraint("Symmetric", 10, 2, 44, 2, -1, 1))
sketch3.addConstraint(Sketcher.Constraint("Symmetric", 8, 2, 46, 2, -1, 1))
sketch3.addConstraint(Sketcher.Constraint("Symmetric", 14, 2, 48, 2, -1, 1))
sketch3.addConstraint(Sketcher.Constraint("Symmetric", 12, 2, 50, 2, -1, 1))
sketch3.addConstraint(Sketcher.Constraint("Symmetric", 18, 2, 52, 2, -1, 1))
sketch3.addConstraint(Sketcher.Constraint("Symmetric", 16, 2, 54, 2, -1, 1))
sketch3.addConstraint(Sketcher.Constraint("Symmetric", 22, 2, 56, 2, -1, 1))
sketch3.addConstraint(Sketcher.Constraint("Symmetric", 20, 2, 58, 2, -1, 1))
sketch3.addConstraint(Sketcher.Constraint("Symmetric", 26, 2, 60, 2, -1, 1))
sketch3.addConstraint(Sketcher.Constraint("Symmetric", 24, 2, 62, 2, -1, 1))
sketch3.addConstraint(Sketcher.Constraint("Symmetric", 30, 2, 64, 2, -1, 1))
sketch3.addConstraint(Sketcher.Constraint("Symmetric", 28, 2, 66, 2, -1, 1))
sketch3.addConstraint(Sketcher.Constraint("Symmetric", 34, 2, 68, 2, -1, 1))
sketch3.addConstraint(Sketcher.Constraint("Symmetric", 32, 2, 70, 2, -1, 1))
sketch3.addConstraint(Sketcher.Constraint("Symmetric", 33, 2, 36, 2, -2))
sketch3.addConstraint(Sketcher.Constraint("Symmetric", 35, 2, 38, 2, -2))
sketch3.addConstraint(Sketcher.Constraint("Symmetric", 29, 2, 40, 2, -2))
sketch3.addConstraint(Sketcher.Constraint("Symmetric", 31, 2, 42, 2, -2))
sketch3.addConstraint(Sketcher.Constraint("Symmetric", 25, 2, 44, 2, -2))
sketch3.addConstraint(Sketcher.Constraint("Symmetric", 27, 2, 46, 2, -2))
sketch3.addConstraint(Sketcher.Constraint("Symmetric", 21, 2, 48, 2, -2))
sketch3.addConstraint(Sketcher.Constraint("Symmetric", 23, 2, 50, 2, -2))
sketch3.addConstraint(Sketcher.Constraint("Horizontal", 17, 2, 52, 2))
sketch3.addConstraint(Sketcher.Constraint("Vertical", 3, 2, 4, 2))
sketch3.addConstraint(Sketcher.Constraint("Vertical", 2, 2, 5, 2))
sketch3.addConstraint(Sketcher.Constraint("Vertical", 7, 2, 8, 2))
sketch3.addConstraint(Sketcher.Constraint("Vertical", 6, 2, 9, 2))
sketch3.addConstraint(Sketcher.Constraint("Vertical", 11, 2, 12, 2))
sketch3.addConstraint(Sketcher.Constraint("Vertical", 10, 2, 13, 2))
sketch3.addConstraint(Sketcher.Constraint("Vertical", 15, 2, 16, 2))
sketch3.addConstraint(Sketcher.Constraint("Vertical", 14, 2, 17, 2))
sketch3.addConstraint(Sketcher.Constraint("Equal", 2, 4))
sketch3.addConstraint(Sketcher.Constraint("Equal", 6, 8))
sketch3.addConstraint(Sketcher.Constraint("Equal", 10, 12))
sketch3.addConstraint(Sketcher.Constraint("Equal", 14, 16))
sketch3.addConstraint(Sketcher.Constraint("DistanceY", 0, 2, 0, 1, Q("12 mm")))
sketch3.addConstraint(Sketcher.Constraint("DistanceX", 1, 1, 1, 2, Q("6.2 mm")))
sketch3.addConstraint(Sketcher.Constraint("DistanceX", -1, 1, 0, 2, Q("143 mm")))
sketch3.addConstraint(Sketcher.Constraint("DistanceY", 0, 2, -1, 1, Q("102 mm")))
sketch3.addConstraint(Sketcher.Constraint("DistanceY", 4, 2, -1, 1, Q("78 mm")))
sketch3.addConstraint(Sketcher.Constraint("DistanceY", 8, 2, -1, 1, Q("54 mm")))
sketch3.addConstraint(Sketcher.Constraint("DistanceY", 12, 2, -1, 1, Q("30 mm")))
sketch3.setExpression("Constraints[183]", "Params.sketch3_height")
sketch3.setExpression("Constraints[184]", "Params.sketch3_width")
pad3 = body.newObject("PartDesign::Pad", "Pad002")
pad3.Profile = sketch3
pad3.setExpression("Length", "Params.pad3_length")
pad3.Reversed = True

# Sketch on XY plane
sketch4 = body.newObject("Sketcher::SketchObject", "Sketch003")
sketch4.AttachmentSupport = (doc.getObject("XY_Plane"), [""])
sketch4.MapMode = "FlatFace"
sketch4.AttachmentOffset = App.Placement(V(0, 0, 6.2), App.Rotation())
sketch4.addGeometry(Part.LineSegment(V(-149, -84, 0), V(-149, -110, 0)), False)
sketch4.addGeometry(Part.LineSegment(V(-149, -110, 0), V(180, -110, 0)), False)
sketch4.addGeometry(Part.LineSegment(V(180, -110, 0), V(180, -84, 0)), False)
sketch4.addGeometry(Part.LineSegment(V(180, -84, 0), V(-149, -84, 0)), False)
sketch4.addConstraint(Sketcher.Constraint("Coincident", 0, 2, 1, 1))
sketch4.addConstraint(Sketcher.Constraint("Coincident", 1, 2, 2, 1))
sketch4.addConstraint(Sketcher.Constraint("Coincident", 2, 2, 3, 1))
sketch4.addConstraint(Sketcher.Constraint("Coincident", 3, 2, 0, 1))
sketch4.addConstraint(Sketcher.Constraint("Vertical", 0))
sketch4.addConstraint(Sketcher.Constraint("Horizontal", 1))
sketch4.addConstraint(Sketcher.Constraint("Vertical", 2))
sketch4.addConstraint(Sketcher.Constraint("Horizontal", 3))
sketch4.addConstraint(Sketcher.Constraint("DistanceY", 0, 2, 0, 1, Q("26 mm")))
sketch4.addConstraint(Sketcher.Constraint("DistanceY", 0, 2, -1, 1, Q("110 mm")))
sketch4.addConstraint(Sketcher.Constraint("DistanceX", 0, 2, -1, 1, Q("149.2 mm")))
sketch4.addConstraint(Sketcher.Constraint("DistanceX", 1, 1, 1, 2, Q("329.668366 mm")))
sketch4.setExpression("Constraints[8]", "Params.sketch4_height")
pocket1 = body.newObject("PartDesign::Pocket", "Pocket")
pocket1.Profile = sketch4
pocket1.Type = "ThroughAll"

doc.recompute()
